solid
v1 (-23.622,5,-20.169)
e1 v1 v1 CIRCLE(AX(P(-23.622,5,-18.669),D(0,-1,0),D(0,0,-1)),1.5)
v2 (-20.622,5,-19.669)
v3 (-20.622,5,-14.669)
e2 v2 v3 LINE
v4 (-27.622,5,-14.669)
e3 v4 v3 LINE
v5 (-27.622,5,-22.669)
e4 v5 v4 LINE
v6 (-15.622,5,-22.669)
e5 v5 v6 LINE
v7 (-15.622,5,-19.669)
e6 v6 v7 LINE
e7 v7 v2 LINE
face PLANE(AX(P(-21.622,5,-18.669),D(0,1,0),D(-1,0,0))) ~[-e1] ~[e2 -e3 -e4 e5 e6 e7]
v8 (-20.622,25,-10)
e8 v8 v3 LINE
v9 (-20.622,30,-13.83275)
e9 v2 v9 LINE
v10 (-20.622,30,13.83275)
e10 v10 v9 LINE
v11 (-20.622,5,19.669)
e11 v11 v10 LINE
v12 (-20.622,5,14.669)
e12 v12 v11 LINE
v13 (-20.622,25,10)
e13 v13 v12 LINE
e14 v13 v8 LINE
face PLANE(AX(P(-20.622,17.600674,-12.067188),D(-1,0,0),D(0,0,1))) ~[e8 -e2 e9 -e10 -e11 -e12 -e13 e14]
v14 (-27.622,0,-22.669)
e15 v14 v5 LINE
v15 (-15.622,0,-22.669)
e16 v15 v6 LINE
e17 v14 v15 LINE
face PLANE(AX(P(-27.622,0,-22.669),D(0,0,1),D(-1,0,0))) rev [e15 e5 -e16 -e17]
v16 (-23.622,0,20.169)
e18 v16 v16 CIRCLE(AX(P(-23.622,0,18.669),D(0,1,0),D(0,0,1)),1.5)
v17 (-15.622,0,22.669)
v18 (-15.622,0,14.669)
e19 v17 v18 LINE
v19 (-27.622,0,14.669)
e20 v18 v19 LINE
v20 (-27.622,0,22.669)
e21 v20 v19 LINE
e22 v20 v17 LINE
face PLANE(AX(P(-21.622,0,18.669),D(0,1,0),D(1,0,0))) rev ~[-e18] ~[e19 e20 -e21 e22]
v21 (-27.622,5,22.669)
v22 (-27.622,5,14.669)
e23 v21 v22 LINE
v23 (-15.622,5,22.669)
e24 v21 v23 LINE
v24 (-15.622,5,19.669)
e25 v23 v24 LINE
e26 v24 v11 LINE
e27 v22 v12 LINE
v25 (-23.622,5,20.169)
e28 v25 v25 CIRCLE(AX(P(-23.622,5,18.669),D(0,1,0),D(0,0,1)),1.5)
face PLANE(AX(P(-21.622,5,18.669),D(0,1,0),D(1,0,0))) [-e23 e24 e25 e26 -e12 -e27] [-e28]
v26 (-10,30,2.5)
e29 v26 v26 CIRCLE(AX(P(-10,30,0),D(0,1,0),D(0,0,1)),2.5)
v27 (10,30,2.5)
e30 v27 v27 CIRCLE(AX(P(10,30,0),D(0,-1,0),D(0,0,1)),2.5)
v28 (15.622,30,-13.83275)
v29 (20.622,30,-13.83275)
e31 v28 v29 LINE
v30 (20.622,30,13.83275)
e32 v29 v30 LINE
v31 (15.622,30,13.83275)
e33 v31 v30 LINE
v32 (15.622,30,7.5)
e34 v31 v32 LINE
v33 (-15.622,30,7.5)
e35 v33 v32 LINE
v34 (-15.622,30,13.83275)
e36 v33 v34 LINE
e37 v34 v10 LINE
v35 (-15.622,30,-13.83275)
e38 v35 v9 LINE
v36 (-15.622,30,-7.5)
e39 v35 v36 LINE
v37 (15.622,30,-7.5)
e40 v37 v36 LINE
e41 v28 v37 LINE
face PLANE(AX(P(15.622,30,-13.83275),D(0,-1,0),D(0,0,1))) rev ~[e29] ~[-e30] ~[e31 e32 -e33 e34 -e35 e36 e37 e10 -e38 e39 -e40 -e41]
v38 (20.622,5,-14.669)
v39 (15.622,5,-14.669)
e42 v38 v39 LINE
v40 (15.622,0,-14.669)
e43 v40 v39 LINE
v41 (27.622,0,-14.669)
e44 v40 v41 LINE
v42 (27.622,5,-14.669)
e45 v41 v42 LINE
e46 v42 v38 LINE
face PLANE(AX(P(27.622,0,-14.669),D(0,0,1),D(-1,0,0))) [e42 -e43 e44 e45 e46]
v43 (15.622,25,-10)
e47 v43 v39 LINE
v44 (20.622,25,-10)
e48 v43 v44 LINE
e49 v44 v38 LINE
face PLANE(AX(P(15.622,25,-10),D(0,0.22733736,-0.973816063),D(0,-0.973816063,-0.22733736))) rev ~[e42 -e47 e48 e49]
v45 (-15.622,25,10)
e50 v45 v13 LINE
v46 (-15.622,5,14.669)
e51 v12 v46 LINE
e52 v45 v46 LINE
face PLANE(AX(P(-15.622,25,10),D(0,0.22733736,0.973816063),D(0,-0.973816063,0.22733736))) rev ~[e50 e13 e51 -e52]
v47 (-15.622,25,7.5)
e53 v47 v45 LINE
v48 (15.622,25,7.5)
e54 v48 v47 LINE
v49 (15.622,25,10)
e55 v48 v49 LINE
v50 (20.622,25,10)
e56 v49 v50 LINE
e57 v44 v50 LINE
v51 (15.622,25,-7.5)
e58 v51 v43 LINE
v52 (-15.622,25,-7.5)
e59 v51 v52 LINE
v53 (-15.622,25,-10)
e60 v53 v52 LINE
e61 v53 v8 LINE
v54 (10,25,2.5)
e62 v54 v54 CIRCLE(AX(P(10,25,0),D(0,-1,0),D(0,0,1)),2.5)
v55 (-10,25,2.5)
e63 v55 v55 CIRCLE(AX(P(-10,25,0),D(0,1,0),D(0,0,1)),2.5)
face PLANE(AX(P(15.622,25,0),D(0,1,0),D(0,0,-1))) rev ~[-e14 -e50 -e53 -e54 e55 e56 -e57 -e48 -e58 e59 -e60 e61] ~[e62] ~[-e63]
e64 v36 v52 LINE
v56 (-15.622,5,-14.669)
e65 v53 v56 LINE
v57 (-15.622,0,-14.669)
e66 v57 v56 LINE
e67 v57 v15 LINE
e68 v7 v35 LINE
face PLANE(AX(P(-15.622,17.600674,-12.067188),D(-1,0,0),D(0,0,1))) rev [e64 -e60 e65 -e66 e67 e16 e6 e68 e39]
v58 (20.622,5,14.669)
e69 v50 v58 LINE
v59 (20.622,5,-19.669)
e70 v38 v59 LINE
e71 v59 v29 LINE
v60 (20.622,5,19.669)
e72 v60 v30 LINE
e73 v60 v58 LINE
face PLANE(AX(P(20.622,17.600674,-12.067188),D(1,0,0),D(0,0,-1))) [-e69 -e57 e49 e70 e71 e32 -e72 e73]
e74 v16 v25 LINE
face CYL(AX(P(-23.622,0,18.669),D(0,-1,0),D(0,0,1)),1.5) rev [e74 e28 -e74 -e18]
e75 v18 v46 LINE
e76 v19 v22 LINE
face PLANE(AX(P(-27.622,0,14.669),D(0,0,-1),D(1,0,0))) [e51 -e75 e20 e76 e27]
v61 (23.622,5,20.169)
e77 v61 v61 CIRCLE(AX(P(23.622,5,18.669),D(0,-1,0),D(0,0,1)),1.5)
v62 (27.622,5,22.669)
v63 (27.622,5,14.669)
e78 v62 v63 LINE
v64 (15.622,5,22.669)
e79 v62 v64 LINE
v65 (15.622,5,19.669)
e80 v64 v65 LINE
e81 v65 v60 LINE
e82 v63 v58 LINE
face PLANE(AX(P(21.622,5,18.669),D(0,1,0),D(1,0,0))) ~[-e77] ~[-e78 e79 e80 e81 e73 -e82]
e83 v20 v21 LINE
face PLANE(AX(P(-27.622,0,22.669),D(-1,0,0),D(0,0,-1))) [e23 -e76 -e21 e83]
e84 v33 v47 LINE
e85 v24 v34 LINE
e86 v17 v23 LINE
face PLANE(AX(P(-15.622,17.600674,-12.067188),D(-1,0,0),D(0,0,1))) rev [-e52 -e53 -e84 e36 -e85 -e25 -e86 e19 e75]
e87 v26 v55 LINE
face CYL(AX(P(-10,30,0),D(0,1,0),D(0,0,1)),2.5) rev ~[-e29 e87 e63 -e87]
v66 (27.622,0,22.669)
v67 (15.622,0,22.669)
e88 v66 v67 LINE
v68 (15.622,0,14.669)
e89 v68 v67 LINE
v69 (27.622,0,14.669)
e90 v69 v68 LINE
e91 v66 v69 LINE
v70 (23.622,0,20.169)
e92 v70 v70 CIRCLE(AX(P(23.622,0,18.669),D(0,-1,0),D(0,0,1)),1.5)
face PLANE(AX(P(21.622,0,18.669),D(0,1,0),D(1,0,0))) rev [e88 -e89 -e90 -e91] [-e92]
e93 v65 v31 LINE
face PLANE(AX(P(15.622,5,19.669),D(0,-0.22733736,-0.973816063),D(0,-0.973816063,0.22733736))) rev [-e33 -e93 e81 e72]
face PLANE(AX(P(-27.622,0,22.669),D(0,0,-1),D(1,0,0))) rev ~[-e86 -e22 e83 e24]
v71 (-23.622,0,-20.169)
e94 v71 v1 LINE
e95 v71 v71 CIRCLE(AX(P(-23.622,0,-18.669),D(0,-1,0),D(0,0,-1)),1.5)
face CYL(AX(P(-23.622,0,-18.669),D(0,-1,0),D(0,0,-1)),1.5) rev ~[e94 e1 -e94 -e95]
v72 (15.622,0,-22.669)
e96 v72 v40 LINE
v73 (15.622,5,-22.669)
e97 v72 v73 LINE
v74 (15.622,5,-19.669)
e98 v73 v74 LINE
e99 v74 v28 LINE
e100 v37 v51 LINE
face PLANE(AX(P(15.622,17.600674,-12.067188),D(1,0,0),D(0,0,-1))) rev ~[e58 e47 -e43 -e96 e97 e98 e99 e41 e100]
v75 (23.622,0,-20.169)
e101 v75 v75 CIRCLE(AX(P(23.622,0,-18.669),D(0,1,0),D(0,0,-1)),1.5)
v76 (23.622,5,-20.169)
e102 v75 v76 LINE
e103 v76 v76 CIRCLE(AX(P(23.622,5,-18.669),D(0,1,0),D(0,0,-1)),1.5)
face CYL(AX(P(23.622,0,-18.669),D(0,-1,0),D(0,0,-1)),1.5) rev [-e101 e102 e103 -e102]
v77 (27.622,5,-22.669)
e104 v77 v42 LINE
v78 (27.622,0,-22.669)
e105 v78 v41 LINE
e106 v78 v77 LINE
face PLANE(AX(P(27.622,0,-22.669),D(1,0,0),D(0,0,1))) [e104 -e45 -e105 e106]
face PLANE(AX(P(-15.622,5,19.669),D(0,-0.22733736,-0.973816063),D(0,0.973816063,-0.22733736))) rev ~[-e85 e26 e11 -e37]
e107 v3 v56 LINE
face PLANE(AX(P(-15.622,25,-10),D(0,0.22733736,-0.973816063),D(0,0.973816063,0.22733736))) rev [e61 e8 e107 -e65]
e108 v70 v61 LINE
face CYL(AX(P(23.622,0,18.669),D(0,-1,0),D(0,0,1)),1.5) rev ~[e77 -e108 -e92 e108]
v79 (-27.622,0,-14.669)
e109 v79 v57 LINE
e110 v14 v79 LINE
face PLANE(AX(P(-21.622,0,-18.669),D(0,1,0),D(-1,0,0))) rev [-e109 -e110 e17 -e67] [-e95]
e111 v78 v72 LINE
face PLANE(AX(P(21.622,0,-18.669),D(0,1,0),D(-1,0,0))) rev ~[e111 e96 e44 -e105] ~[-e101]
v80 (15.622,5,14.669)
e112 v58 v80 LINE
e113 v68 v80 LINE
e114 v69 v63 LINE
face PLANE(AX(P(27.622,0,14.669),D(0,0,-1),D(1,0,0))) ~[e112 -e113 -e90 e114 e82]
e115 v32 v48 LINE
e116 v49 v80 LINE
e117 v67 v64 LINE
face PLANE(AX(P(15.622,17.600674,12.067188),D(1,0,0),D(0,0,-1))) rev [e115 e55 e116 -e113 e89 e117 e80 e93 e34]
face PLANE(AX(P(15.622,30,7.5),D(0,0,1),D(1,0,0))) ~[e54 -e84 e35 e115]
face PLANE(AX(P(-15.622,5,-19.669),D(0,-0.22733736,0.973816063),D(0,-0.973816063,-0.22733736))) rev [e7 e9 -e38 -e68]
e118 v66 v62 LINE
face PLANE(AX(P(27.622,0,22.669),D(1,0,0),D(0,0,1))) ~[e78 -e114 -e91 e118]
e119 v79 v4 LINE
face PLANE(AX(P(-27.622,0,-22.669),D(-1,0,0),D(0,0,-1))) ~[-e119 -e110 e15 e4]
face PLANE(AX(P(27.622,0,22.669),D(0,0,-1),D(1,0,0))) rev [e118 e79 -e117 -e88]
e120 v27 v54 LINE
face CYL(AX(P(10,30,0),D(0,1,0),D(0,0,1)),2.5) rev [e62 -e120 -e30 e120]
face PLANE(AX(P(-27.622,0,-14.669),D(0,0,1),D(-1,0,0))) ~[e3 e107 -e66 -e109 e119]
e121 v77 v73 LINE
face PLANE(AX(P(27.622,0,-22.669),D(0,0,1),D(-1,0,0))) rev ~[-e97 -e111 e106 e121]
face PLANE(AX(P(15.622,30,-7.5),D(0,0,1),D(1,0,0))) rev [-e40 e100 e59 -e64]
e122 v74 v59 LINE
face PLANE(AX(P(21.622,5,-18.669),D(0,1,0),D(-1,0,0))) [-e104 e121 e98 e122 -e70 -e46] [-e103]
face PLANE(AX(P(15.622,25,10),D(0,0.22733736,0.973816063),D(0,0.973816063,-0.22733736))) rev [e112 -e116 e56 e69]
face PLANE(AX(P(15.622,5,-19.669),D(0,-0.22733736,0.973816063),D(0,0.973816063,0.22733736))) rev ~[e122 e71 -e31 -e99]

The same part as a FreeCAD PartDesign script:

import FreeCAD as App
import Part
import Sketcher
Q = App.Units.Quantity

doc = App.newDocument("Part")
body = doc.addObject("PartDesign::Body", "Body")

# Sketch on XZ plane
sketch1 = body.newObject("Sketcher::SketchObject", "Sketch")
sketch1.AttachmentSupport = (doc.getObject("XZ_Plane"), [""])
sketch1.MapMode = "FlatFace"
sketch1.addGeometry(Part.LineSegment(App.Vector(-27.6, 14.7, 0), App.Vector(-27.6, 22.7, 0)), False)
sketch1.addGeometry(Part.LineSegment(App.Vector(-27.6, 22.7, 0), App.Vector(-15.6, 22.7, 0)), False)
sketch1.addGeometry(Part.LineSegment(App.Vector(-15.6, 22.7, 0), App.Vector(-15.6, 14.7, 0)), False)
sketch1.addGeometry(Part.LineSegment(App.Vector(-15.6, 14.7, 0), App.Vector(-27.6, 14.7, 0)), False)
sketch1.addGeometry(Part.Circle(App.Vector(-23.6, 18.7, 0), App.Vector(0, 0, 1), 1.5), False)
sketch1.addConstraint(Sketcher.Constraint("Coincident", 0, 2, 1, 1))
sketch1.addConstraint(Sketcher.Constraint("Coincident", 1, 2, 2, 1))
sketch1.addConstraint(Sketcher.Constraint("Coincident", 2, 2, 3, 1))
sketch1.addConstraint(Sketcher.Constraint("Coincident", 3, 2, 0, 1))
sketch1.addConstraint(Sketcher.Constraint("Vertical", 0))
sketch1.addConstraint(Sketcher.Constraint("Horizontal", 1))
sketch1.addConstraint(Sketcher.Constraint("Vertical", 2))
sketch1.addConstraint(Sketcher.Constraint("Horizontal", 3))
sketch1.addConstraint(Sketcher.Constraint("Diameter", 4, Q("3 mm")))
sketch1.addConstraint(Sketcher.Constraint("DistanceX", 1, 1, 1, 2, Q("12 mm")))
sketch1.addConstraint(Sketcher.Constraint("DistanceY", 0, 1, 0, 2, Q("8 mm")))
sketch1.addConstraint(Sketcher.Constraint("DistanceX", 0, 2, 4, 3, Q("4 mm")))
sketch1.addConstraint(Sketcher.Constraint("DistanceY", 4, 3, 0, 2, Q("4 mm")))
sketch1.addConstraint(Sketcher.Constraint("DistanceX", 4, 3, -1, 1, Q("23.622 mm")))
sketch1.addConstraint(Sketcher.Constraint("DistanceY", -1, 1, 4, 3, Q("18.669 mm")))
pad1 = body.newObject("PartDesign::Pad", "Pad")
pad1.Profile = sketch1
pad1.Length = 5
pad1.Reversed = True

# Sketch on YZ plane
sketch2 = body.newObject("Sketcher::SketchObject", "Sketch001")
sketch2.AttachmentSupport = (doc.getObject("YZ_Plane"), [""])
sketch2.MapMode = "FlatFace"
sketch2.AttachmentOffset = App.Placement(App.Vector(0, 0, -15.622), App.Rotation())
sketch2.addGeometry(Part.LineSegment(App.Vector(5, 15, 0), App.Vector(25, 10, 0)), False)
sketch2.addGeometry(Part.LineSegment(App.Vector(25, 10, 0), App.Vector(25, 0, 0)), False)
sketch2.addGeometry(Part.LineSegment(App.Vector(25, 0, 0), App.Vector(30, 0, 0)), False)
sketch2.addGeometry(Part.LineSegment(App.Vector(30, 0, 0), App.Vector(30, 14, 0)), False)
sketch2.addGeometry(Part.LineSegment(App.Vector(30, 14, 0), App.Vector(5, 20, 0)), False)
sketch2.addGeometry(Part.LineSegment(App.Vector(5, 20, 0), App.Vector(0, 20, 0)), False)
sketch2.addGeometry(Part.LineSegment(App.Vector(0, 20, 0), App.Vector(0, 15, 0)), False)
sketch2.addGeometry(Part.LineSegment(App.Vector(0, 15, 0), App.Vector(5, 15, 0)), False)
sketch2.addConstraint(Sketcher.Constraint("Coincident", 0, 2, 1, 1))
sketch2.addConstraint(Sketcher.Constraint("Coincident", 1, 2, 2, 1))
sketch2.addConstraint(Sketcher.Constraint("Coincident", 2, 2, 3, 1))
sketch2.addConstraint(Sketcher.Constraint("Coincident", 3, 2, 4, 1))
sketch2.addConstraint(Sketcher.Constraint("Coincident", 4, 2, 5, 1))
sketch2.addConstraint(Sketcher.Constraint("Coincident", 5, 2, 6, 1))
sketch2.addConstraint(Sketcher.Constraint("Coincident", 6, 2, 7, 1))
sketch2.addConstraint(Sketcher.Constraint("Coincident", 7, 2, 0, 1))
sketch2.addConstraint(Sketcher.Constraint("Vertical", 1))
sketch2.addConstraint(Sketcher.Constraint("Horizontal", 2))
sketch2.addConstraint(Sketcher.Constraint("Vertical", 3))
sketch2.addConstraint(Sketcher.Constraint("Horizontal", 5))
sketch2.addConstraint(Sketcher.Constraint("Vertical", 6))
sketch2.addConstraint(Sketcher.Constraint("Horizontal", 7))
sketch2.addConstraint(Sketcher.Constraint("PointOnObject", 1, 2, -1))
sketch2.addConstraint(Sketcher.Constraint("PointOnObject", 5, 2, -2))
sketch2.addConstraint(Sketcher.Constraint("Parallel", 0, 4))
sketch2.addConstraint(Sketcher.Constraint("Vertical", 4, 2, 7, 2))
sketch2.addConstraint(Sketcher.Constraint("Equal", 2, 5))
sketch2.addConstraint(Sketcher.Constraint("Equal", 7, 6))
sketch2.addConstraint(Sketcher.Constraint("DistanceX", 2, 1, 2, 2, Q("5 mm")))
sketch2.addConstraint(Sketcher.Constraint("DistanceY", 1, 2, 1, 1, Q("10 mm")))
sketch2.addConstraint(Sketcher.Constraint("DistanceX", -1, 1, 0, 2, Q("25 mm")))
sketch2.addConstraint(Sketcher.Constraint("DistanceY", -1, 1, 4, 2, Q("19.669 mm")))
pad2 = body.newObject("PartDesign::Pad", "Pad001")
pad2.Profile = sketch2
pad2.Length = 5
pad2.Reversed = True
doc.recompute()

mirrored = body.newObject("PartDesign::Mirrored", "Mirrored")
mirrored.Originals = [pad1, pad2]
mirrored.MirrorPlane = (doc.getObject("XY_Plane"), [""])
body.Tip = mirrored

# Sketch on XZ plane
sketch3 = body.newObject("Sketcher::SketchObject", "Sketch002")
sketch3.AttachmentSupport = (doc.getObject("XZ_Plane"), [""])
sketch3.MapMode = "FlatFace"
sketch3.AttachmentOffset = App.Placement(App.Vector(0, 0, -30), App.Rotation())
sketch3.addGeometry(Part.LineSegment(App.Vector(-15.6, -7.5, 0), App.Vector(-15.6, 7.5, 0)), False)
sketch3.addGeometry(Part.LineSegment(App.Vector(-15.6, 7.5, 0), App.Vector(0, 7.5, 0)), False)
sketch3.addGeometry(Part.LineSegment(App.Vector(0, 7.5, 0), App.Vector(0, -7.5, 0)), False)
sketch3.addGeometry(Part.LineSegment(App.Vector(0, -7.5, 0), App.Vector(-15.6, -7.5, 0)), False)
sketch3.addGeometry(Part.Circle(App.Vector(-10, 0, 0), App.Vector(0, 0, 1), 2.5), False)
sketch3.addConstraint(Sketcher.Constraint("Coincident", 0, 2, 1, 1))
sketch3.addConstraint(Sketcher.Constraint("Coincident", 1, 2, 2, 1))
sketch3.addConstraint(Sketcher.Constraint("Coincident", 2, 2, 3, 1))
sketch3.addConstraint(Sketcher.Constraint("Coincident", 3, 2, 0, 1))
sketch3.addConstraint(Sketcher.Constraint("Vertical", 0))
sketch3.addConstraint(Sketcher.Constraint("Horizontal", 1))
sketch3.addConstraint(Sketcher.Constraint("Vertical", 2))
sketch3.addConstraint(Sketcher.Constraint("Horizontal", 3))
sketch3.addConstraint(Sketcher.Constraint("Symmetric", 1, 2, 2, 2, -1, 1))
sketch3.addConstraint(Sketcher.Constraint("PointOnObject", 4, 3, -1))
sketch3.addConstraint(Sketcher.Constraint("Diameter", 4, Q("5 mm")))
sketch3.addConstraint(Sketcher.Constraint("DistanceY", 0, 1, 0, 2, Q("15 mm")))
sketch3.addConstraint(Sketcher.Constraint("DistanceX", 4, 3, -1, 1, Q("10 mm")))
sketch3.addConstraint(Sketcher.Constraint("DistanceX", 1, 1, 1, 2, Q("15.622 mm")))
pad3 = body.newObject("PartDesign::Pad", "Pad002")
pad3.Profile = sketch3
pad3.Length = 5
doc.recompute()

mirrored2 = body.newObject("PartDesign::Mirrored", "Mirrored001")
mirrored2.Originals = [pad1, pad2, pad3]
mirrored2.MirrorPlane = (doc.getObject("YZ_Plane"), [""])
body.Tip = mirrored2
body2 = doc.addObject("PartDesign::Body", "Body001")

# Sketch on XZ plane
sketch4 = body2.newObject("Sketcher::SketchObject", "Sketch003")
sketch4.AttachmentSupport = (doc.getObject("XZ_Plane001"), [""])
sketch4.MapMode = "FlatFace"
sketch4.addGeometry(Part.LineSegment(App.Vector(27.6, -14.7, 0), App.Vector(27.6, -22.7, 0)), False)
sketch4.addGeometry(Part.LineSegment(App.Vector(27.6, -22.7, 0), App.Vector(15.6, -22.7, 0)), False)
sketch4.addGeometry(Part.LineSegment(App.Vector(15.6, -22.7, 0), App.Vector(15.6, -14.7, 0)), False)
sketch4.addGeometry(Part.LineSegment(App.Vector(15.6, -14.7, 0), App.Vector(27.6, -14.7, 0)), False)
sketch4.addGeometry(Part.Circle(App.Vector(23.6, -18.7, 0), App.Vector(0, 0, 1), 1.5), False)
sketch4.addConstraint(Sketcher.Constraint("Coincident", 0, 2, 1, 1))
sketch4.addConstraint(Sketcher.Constraint("Coincident", 1, 2, 2, 1))
sketch4.addConstraint(Sketcher.Constraint("Coincident", 2, 2, 3, 1))
sketch4.addConstraint(Sketcher.Constraint("Coincident", 3, 2, 0, 1))
sketch4.addConstraint(Sketcher.Constraint("Vertical", 0))
sketch4.addConstraint(Sketcher.Constraint("Horizontal", 1))
sketch4.addConstraint(Sketcher.Constraint("Vertical", 2))
sketch4.addConstraint(Sketcher.Constraint("Horizontal", 3))
sketch4.addConstraint(Sketcher.Constraint("Diameter", 4, Q("3 mm")))
sketch4.addConstraint(Sketcher.Constraint("DistanceX", 1, 2, 1, 1, Q("12 mm")))
sketch4.addConstraint(Sketcher.Constraint("DistanceY", 0, 2, 0, 1, Q("8 mm")))
sketch4.addConstraint(Sketcher.Constraint("DistanceX", 4, 3, 0, 2, Q("4 mm")))
sketch4.addConstraint(Sketcher.Constraint("DistanceY", 0, 2, 4, 3, Q("4 mm")))
sketch4.addConstraint(Sketcher.Constraint("DistanceX", -1, 1, 4, 3, Q("23.622 mm")))
sketch4.addConstraint(Sketcher.Constraint("DistanceY", 4, 3, -1, 1, Q("18.669 mm")))
pad4 = body2.newObject("PartDesign::Pad", "Pad003")
pad4.Profile = sketch4
pad4.Length = 5
pad4.Reversed = True
body.AllowCompound = True
doc.recompute()

boolean = body.newObject("PartDesign::Boolean", "Boolean")
boolean.Type = "Fuse"
boolean.addObjects([body2])

# Sketch on YZ plane
sketch5 = body.newObject("Sketcher::SketchObject", "Sketch004")
sketch5.AttachmentSupport = (doc.getObject("YZ_Plane"), [""])
sketch5.MapMode = "FlatFace"
sketch5.AttachmentOffset = App.Placement(App.Vector(0, 0, 15.622), App.Rotation())
sketch5.addGeometry(Part.LineSegment(App.Vector(5, -15, 0), App.Vector(25, -10, 0)), False)
sketch5.addGeometry(Part.LineSegment(App.Vector(25, -10, 0), App.Vector(25, 0, 0)), False)
sketch5.addGeometry(Part.LineSegment(App.Vector(25, 0, 0), App.Vector(30, 0, 0)), False)
sketch5.addGeometry(Part.LineSegment(App.Vector(30, 0, 0), App.Vector(30, -14, 0)), False)
sketch5.addGeometry(Part.LineSegment(App.Vector(30, -14, 0), App.Vector(5, -20, 0)), False)
sketch5.addGeometry(Part.LineSegment(App.Vector(5, -20, 0), App.Vector(0, -20, 0)), False)
sketch5.addGeometry(Part.LineSegment(App.Vector(0, -20, 0), App.Vector(0, -15, 0)), False)
sketch5.addGeometry(Part.LineSegment(App.Vector(0, -15, 0), App.Vector(5, -15, 0)), False)
sketch5.addConstraint(Sketcher.Constraint("Coincident", 0, 2, 1, 1))
sketch5.addConstraint(Sketcher.Constraint("Coincident", 1, 2, 2, 1))
sketch5.addConstraint(Sketcher.Constraint("Coincident", 2, 2, 3, 1))
sketch5.addConstraint(Sketcher.Constraint("Coincident", 3, 2, 4, 1))
sketch5.addConstraint(Sketcher.Constraint("Coincident", 4, 2, 5, 1))
sketch5.addConstraint(Sketcher.Constraint("Coincident", 5, 2, 6, 1))
sketch5.addConstraint(Sketcher.Constraint("Coincident", 6, 2, 7, 1))
sketch5.addConstraint(Sketcher.Constraint("Coincident", 7, 2, 0, 1))
sketch5.addConstraint(Sketcher.Constraint("Vertical", 1))
sketch5.addConstraint(Sketcher.Constraint("Horizontal", 2))
sketch5.addConstraint(Sketcher.Constraint("Vertical", 3))
sketch5.addConstraint(Sketcher.Constraint("Horizontal", 5))
sketch5.addConstraint(Sketcher.Constraint("Vertical", 6))
sketch5.addConstraint(Sketcher.Constraint("Horizontal", 7))
sketch5.addConstraint(Sketcher.Constraint("PointOnObject", 1, 2, -1))
sketch5.addConstraint(Sketcher.Constraint("PointOnObject", 5, 2, -2))
sketch5.addConstraint(Sketcher.Constraint("Parallel", 0, 4))
sketch5.addConstraint(Sketcher.Constraint("Vertical", 4, 2, 7, 2))
sketch5.addConstraint(Sketcher.Constraint("Equal", 2, 5))
sketch5.addConstraint(Sketcher.Constraint("Equal", 7, 6))
sketch5.addConstraint(Sketcher.Constraint("DistanceX", 2, 1, 2, 2, Q("5 mm")))
sketch5.addConstraint(Sketcher.Constraint("DistanceY", 1, 1, 1, 2, Q("10 mm")))
sketch5.addConstraint(Sketcher.Constraint("DistanceX", -1, 1, 0, 2, Q("25 mm")))
sketch5.addConstraint(Sketcher.Constraint("DistanceY", 4, 2, -1, 1, Q("19.669 mm")))
pad5 = body.newObject("PartDesign::Pad", "Pad004")
pad5.Profile = sketch5
pad5.Length = 5

doc.recompute()
